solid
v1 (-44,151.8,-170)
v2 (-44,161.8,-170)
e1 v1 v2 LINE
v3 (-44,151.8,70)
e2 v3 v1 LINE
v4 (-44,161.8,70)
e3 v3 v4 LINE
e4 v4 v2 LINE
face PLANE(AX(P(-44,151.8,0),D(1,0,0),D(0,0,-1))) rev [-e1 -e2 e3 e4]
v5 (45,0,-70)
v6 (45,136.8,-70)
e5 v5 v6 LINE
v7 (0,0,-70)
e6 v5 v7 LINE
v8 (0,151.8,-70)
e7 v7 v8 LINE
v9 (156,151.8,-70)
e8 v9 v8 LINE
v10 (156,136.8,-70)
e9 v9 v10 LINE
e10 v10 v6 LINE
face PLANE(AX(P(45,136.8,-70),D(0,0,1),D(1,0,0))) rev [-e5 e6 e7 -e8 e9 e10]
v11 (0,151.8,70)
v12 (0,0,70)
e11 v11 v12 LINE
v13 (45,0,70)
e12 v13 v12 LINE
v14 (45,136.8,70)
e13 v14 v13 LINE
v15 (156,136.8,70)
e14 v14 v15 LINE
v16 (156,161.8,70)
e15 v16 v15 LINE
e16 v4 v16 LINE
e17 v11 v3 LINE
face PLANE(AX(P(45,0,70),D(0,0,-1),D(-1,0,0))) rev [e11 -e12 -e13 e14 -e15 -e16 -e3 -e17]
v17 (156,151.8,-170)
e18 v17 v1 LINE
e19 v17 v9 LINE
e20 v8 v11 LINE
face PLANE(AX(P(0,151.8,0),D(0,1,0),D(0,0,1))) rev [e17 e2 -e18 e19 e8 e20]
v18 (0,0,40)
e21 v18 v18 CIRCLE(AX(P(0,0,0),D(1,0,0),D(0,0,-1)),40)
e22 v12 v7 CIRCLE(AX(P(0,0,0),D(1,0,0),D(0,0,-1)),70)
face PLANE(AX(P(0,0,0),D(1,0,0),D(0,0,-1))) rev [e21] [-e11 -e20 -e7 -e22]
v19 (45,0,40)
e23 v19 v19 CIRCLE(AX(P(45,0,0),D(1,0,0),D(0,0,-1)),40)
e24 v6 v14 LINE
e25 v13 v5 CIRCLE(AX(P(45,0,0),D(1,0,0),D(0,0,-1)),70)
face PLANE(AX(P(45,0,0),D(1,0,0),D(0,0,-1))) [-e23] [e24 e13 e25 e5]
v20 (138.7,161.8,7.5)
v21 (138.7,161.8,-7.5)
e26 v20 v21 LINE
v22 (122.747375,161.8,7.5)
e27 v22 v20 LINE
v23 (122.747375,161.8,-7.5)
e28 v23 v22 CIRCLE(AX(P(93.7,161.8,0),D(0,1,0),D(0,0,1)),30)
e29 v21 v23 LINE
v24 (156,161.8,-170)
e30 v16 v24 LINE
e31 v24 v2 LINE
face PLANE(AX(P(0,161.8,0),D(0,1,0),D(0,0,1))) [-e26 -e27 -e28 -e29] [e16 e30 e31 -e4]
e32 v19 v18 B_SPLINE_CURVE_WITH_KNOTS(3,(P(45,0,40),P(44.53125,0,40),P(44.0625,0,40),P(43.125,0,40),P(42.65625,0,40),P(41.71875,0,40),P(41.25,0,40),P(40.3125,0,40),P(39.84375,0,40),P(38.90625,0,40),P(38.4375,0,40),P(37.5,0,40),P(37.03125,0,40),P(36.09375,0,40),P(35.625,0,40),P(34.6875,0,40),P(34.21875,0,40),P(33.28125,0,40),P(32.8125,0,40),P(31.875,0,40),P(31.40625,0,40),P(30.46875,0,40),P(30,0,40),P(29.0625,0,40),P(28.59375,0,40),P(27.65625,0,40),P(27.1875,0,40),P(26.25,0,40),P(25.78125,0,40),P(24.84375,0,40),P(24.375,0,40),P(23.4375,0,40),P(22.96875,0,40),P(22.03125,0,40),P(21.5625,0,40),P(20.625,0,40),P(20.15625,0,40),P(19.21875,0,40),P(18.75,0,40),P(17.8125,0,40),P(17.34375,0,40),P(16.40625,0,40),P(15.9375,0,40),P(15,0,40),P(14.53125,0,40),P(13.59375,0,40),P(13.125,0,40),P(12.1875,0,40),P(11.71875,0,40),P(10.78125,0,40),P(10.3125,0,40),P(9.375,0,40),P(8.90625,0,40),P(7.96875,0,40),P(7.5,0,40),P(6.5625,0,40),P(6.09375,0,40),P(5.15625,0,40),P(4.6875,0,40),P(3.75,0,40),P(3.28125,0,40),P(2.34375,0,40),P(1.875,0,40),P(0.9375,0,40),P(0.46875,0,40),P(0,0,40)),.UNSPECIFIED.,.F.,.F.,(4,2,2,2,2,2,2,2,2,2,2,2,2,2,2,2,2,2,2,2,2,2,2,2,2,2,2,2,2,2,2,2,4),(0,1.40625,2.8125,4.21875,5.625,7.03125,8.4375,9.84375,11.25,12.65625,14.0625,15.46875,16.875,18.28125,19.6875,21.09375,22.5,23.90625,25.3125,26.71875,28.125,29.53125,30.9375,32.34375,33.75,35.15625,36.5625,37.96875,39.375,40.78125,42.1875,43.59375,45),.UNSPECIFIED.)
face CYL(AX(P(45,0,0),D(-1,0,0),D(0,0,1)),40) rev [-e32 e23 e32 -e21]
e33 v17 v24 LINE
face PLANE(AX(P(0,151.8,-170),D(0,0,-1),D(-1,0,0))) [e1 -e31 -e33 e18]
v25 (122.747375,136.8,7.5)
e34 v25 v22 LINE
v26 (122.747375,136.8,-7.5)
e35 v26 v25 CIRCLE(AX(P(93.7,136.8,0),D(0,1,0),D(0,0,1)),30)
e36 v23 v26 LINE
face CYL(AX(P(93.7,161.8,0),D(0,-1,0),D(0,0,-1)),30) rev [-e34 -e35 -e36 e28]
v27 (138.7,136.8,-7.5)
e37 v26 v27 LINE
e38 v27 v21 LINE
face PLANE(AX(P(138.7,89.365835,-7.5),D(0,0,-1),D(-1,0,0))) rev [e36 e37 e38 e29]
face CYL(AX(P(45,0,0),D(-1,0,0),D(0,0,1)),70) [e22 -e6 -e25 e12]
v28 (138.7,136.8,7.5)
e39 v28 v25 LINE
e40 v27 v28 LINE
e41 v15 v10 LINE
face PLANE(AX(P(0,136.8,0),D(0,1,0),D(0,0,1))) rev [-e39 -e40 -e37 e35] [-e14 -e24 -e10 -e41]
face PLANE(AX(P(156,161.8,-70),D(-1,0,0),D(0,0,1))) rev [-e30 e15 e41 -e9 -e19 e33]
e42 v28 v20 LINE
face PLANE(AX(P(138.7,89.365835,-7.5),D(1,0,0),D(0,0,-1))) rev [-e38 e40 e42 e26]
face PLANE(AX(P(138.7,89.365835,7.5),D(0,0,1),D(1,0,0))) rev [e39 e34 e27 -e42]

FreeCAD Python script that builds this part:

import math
import FreeCAD as App
import Part
import Sketcher

V = App.Vector
Q = App.Units.Quantity

doc = App.newDocument("Part")
params = doc.addObject("Spreadsheet::Sheet", "Params")
for row, (alias, value) in enumerate([
    ("sketch1_diameter", "80 mm"),
    ("sketch1_radius", "70 mm"),
    ("sketch1_width", "136.8 mm"),
    ("pad1_length", "45 mm"),
    ("sketch2_diameter", "60 mm"),
    ("sketch2_width", "156 mm"),
    ("sketch2_height", "140 mm"),
    ("pad2_length", "25 mm"),
    ("sketch3_width", "200 mm"),
    ("sketch3_width2", "44 mm"),
    ("sketch3_height", "100 mm"),
    ("sketch3_height2", "240 mm"),
    ("pad3_length", "10 mm"),
    ("sketch4_width", "45 mm"),
    ("sketch4_height", "15 mm"),
    ("pocket1_length", "25 mm"),
], start=1):
    params.set(f"A{row}", alias)
    params.set(f"B{row}", "=" + value)
    params.setAlias(f"B{row}", alias)

body = doc.addObject("PartDesign::Body", "Body")

# Sketch on YZ plane
sketch1 = body.newObject("Sketcher::SketchObject", "Sketch")
sketch1.AttachmentSupport = (doc.getObject("YZ_Plane"), [""])
sketch1.MapMode = "FlatFace"
sketch1.addGeometry([
    Part.LineSegment(V(136.8, 70, 0), V(0, 70, 0)),  # 0
    Part.ArcOfCircle(Part.Circle(V(0, 0, 0), V(0, 0, 1), 70), math.radians(90), math.radians(270)),  # 1
    Part.LineSegment(V(0, -70, 0), V(136.8, -70, 0)),  # 2
    Part.LineSegment(V(136.8, -70, 0), V(136.8, 70, 0)),  # 3
    Part.Circle(V(0, 0, 0), V(0, 0, 1), 40),  # 4
], False)
sketch1.addConstraint([
    Sketcher.Constraint("Tangent", 0, 2, 1, 1),
    Sketcher.Constraint("Tangent", 1, 2, 2, 1),
    Sketcher.Constraint("Coincident", 2, 2, 3, 1),
    Sketcher.Constraint("Coincident", 3, 2, 0, 1),
    Sketcher.Constraint("Horizontal", 0),
    Sketcher.Constraint("Horizontal", 2),
    Sketcher.Constraint("Vertical", 3),
    Sketcher.Constraint("Coincident", 1, 3, -1, 1),
    Sketcher.Constraint("Coincident", 4, 3, -1, 1),
    Sketcher.Constraint("Diameter", 4, Q("80 mm")),
    Sketcher.Constraint("Radius", 1, Q("70 mm")),
    Sketcher.Constraint("DistanceX", 0, 2, 0, 1, Q("136.8 mm")),
])
sketch1.setExpression("Constraints[9]", "Params.sketch1_diameter")
sketch1.setExpression("Constraints[10]", "Params.sketch1_radius")
sketch1.setExpression("Constraints[11]", "Params.sketch1_width")
pad1 = body.newObject("PartDesign::Pad", "Pad")
pad1.Profile = sketch1
pad1.setExpression("Length", "Params.pad1_length")

# Sketch on XZ plane
sketch2 = body.newObject("Sketcher::SketchObject", "Sketch001")
sketch2.AttachmentSupport = (doc.getObject("XZ_Plane"), [""])
sketch2.MapMode = "FlatFace"
sketch2.AttachmentOffset = App.Placement(V(0, 0, -136.8), App.Rotation())
sketch2.addGeometry([
    Part.LineSegment(V(0, -70, 0), V(0, 70, 0)),  # 0
    Part.LineSegment(V(0, 70, 0), V(156, 70, 0)),  # 1
    Part.LineSegment(V(156, 70, 0), V(156, -70, 0)),  # 2
    Part.LineSegment(V(156, -70, 0), V(0, -70, 0)),  # 3
    Part.Circle(V(93.7, 0, 0), V(0, 0, 1), 30),  # 4
], False)
sketch2.addConstraint([
    Sketcher.Constraint("Coincident", 0, 2, 1, 1),
    Sketcher.Constraint("Coincident", 1, 2, 2, 1),
    Sketcher.Constraint("Coincident", 2, 2, 3, 1),
    Sketcher.Constraint("Coincident", 3, 2, 0, 1),
    Sketcher.Constraint("Vertical", 0),
    Sketcher.Constraint("Horizontal", 1),
    Sketcher.Constraint("Vertical", 2),
    Sketcher.Constraint("Horizontal", 3),
    Sketcher.Constraint("Symmetric", 0, 2, 3, 2, -1, 1),
    Sketcher.Constraint("PointOnObject", 4, 3, -1),
    Sketcher.Constraint("Diameter", 4, Q("60 mm")),
    Sketcher.Constraint("DistanceX", 1, 1, 1, 2, Q("156 mm")),
    Sketcher.Constraint("DistanceY", 0, 1, 0, 2, Q("140 mm")),
    Sketcher.Constraint("DistanceX", -1, 1, 4, 3, Q("93.7 mm")),
])
sketch2.setExpression("Constraints[10]", "Params.sketch2_diameter")
sketch2.setExpression("Constraints[11]", "Params.sketch2_width")
sketch2.setExpression("Constraints[12]", "Params.sketch2_height")
pad2 = body.newObject("PartDesign::Pad", "Pad001")
pad2.Profile = sketch2
pad2.setExpression("Length", "Params.pad2_length")
pad2.Reversed = True

# Sketch on XZ plane
sketch3 = body.newObject("Sketcher::SketchObject", "Sketch002")
sketch3.AttachmentSupport = (doc.getObject("XZ_Plane"), [""])
sketch3.MapMode = "FlatFace"
sketch3.AttachmentOffset = App.Placement(V(0, 0, -161.8), App.Rotation())
sketch3.addGeometry([
    Part.LineSegment(V(156, -70, 0), V(156, -170, 0)),  # 0
    Part.LineSegment(V(156, -170, 0), V(-44, -170, 0)),  # 1
    Part.LineSegment(V(-44, -170, 0), V(-44, 70, 0)),  # 2
    Part.LineSegment(V(-44, 70, 0), V(0, 70, 0)),  # 3
    Part.LineSegment(V(0, 70, 0), V(0, -70, 0)),  # 4
    Part.LineSegment(V(0, -70, 0), V(156, -70, 0)),  # 5
], False)
sketch3.addConstraint([
    Sketcher.Constraint("Coincident", 0, 2, 1, 1),
    Sketcher.Constraint("Coincident", 1, 2, 2, 1),
    Sketcher.Constraint("Coincident", 2, 2, 3, 1),
    Sketcher.Constraint("Coincident", 3, 2, 4, 1),
    Sketcher.Constraint("Coincident", 4, 2, 5, 1),
    Sketcher.Constraint("Coincident", 5, 2, 0, 1),
    Sketcher.Constraint("Vertical", 0),
    Sketcher.Constraint("Horizontal", 1),
    Sketcher.Constraint("Vertical", 2),
    Sketcher.Constraint("Horizontal", 3),
    Sketcher.Constraint("Vertical", 4),
    Sketcher.Constraint("Horizontal", 5),
    Sketcher.Constraint("Symmetric", 3, 2, 4, 2, -1, 1),
    Sketcher.Constraint("DistanceX", 1, 2, 1, 1, Q("200 mm")),
    Sketcher.Constraint("DistanceX", 3, 1, 3, 2, Q("44 mm")),
    Sketcher.Constraint("DistanceY", 0, 2, 0, 1, Q("100 mm")),
    Sketcher.Constraint("DistanceY", 2, 1, 2, 2, Q("240 mm")),
])
sketch3.setExpression("Constraints[13]", "Params.sketch3_width")
sketch3.setExpression("Constraints[14]", "Params.sketch3_width2")
sketch3.setExpression("Constraints[15]", "Params.sketch3_height")
sketch3.setExpression("Constraints[16]", "Params.sketch3_height2")
pad3 = body.newObject("PartDesign::Pad", "Pad002")
pad3.Profile = sketch3
pad3.setExpression("Length", "Params.pad3_length")

# Sketch on XZ plane
sketch4 = body.newObject("Sketcher::SketchObject", "Sketch003")
sketch4.AttachmentSupport = (doc.getObject("XZ_Plane"), [""])
sketch4.MapMode = "FlatFace"
sketch4.AttachmentOffset = App.Placement(V(0, 0, -161.8), App.Rotation())
sketch4.addGeometry([
    Part.LineSegment(V(93.7, -7.5, 0), V(93.7, 7.5, 0)),
    Part.LineSegment(V(93.7, 7.5, 0), V(138.7, 7.5, 0)),
    Part.LineSegment(V(138.7, 7.5, 0), V(138.7, -7.5, 0)),
    Part.LineSegment(V(138.7, -7.5, 0), V(93.7, -7.5, 0)),
], False)
sketch4.addConstraint([
    Sketcher.Constraint("Coincident", 0, 2, 1, 1),
    Sketcher.Constraint("Coincident", 1, 2, 2, 1),
    Sketcher.Constraint("Coincident", 2, 2, 3, 1),
    Sketcher.Constraint("Coincident", 3, 2, 0, 1),
    Sketcher.Constraint("Vertical", 0),
    Sketcher.Constraint("Horizontal", 1),
    Sketcher.Constraint("Vertical", 2),
    Sketcher.Constraint("Horizontal", 3),
    Sketcher.Constraint("DistanceX", 1, 1, 1, 2, Q("45 mm")),
    Sketcher.Constraint("DistanceY", 0, 1, 0, 2, Q("15 mm")),
    Sketcher.Constraint("DistanceX", -1, 1, 0, 2, Q("93.7 mm")),
    Sketcher.Constraint("DistanceY", -1, 1, 0, 2, Q("7.5 mm")),
])
sketch4.setExpression("Constraints[8]", "Params.sketch4_width")
sketch4.setExpression("Constraints[9]", "Params.sketch4_height")
pocket1 = body.newObject("PartDesign::Pocket", "Pocket")
pocket1.Profile = sketch4
pocket1.setExpression("Length", "Params.pocket1_length")
pocket1.Reversed = True

doc.recompute()
